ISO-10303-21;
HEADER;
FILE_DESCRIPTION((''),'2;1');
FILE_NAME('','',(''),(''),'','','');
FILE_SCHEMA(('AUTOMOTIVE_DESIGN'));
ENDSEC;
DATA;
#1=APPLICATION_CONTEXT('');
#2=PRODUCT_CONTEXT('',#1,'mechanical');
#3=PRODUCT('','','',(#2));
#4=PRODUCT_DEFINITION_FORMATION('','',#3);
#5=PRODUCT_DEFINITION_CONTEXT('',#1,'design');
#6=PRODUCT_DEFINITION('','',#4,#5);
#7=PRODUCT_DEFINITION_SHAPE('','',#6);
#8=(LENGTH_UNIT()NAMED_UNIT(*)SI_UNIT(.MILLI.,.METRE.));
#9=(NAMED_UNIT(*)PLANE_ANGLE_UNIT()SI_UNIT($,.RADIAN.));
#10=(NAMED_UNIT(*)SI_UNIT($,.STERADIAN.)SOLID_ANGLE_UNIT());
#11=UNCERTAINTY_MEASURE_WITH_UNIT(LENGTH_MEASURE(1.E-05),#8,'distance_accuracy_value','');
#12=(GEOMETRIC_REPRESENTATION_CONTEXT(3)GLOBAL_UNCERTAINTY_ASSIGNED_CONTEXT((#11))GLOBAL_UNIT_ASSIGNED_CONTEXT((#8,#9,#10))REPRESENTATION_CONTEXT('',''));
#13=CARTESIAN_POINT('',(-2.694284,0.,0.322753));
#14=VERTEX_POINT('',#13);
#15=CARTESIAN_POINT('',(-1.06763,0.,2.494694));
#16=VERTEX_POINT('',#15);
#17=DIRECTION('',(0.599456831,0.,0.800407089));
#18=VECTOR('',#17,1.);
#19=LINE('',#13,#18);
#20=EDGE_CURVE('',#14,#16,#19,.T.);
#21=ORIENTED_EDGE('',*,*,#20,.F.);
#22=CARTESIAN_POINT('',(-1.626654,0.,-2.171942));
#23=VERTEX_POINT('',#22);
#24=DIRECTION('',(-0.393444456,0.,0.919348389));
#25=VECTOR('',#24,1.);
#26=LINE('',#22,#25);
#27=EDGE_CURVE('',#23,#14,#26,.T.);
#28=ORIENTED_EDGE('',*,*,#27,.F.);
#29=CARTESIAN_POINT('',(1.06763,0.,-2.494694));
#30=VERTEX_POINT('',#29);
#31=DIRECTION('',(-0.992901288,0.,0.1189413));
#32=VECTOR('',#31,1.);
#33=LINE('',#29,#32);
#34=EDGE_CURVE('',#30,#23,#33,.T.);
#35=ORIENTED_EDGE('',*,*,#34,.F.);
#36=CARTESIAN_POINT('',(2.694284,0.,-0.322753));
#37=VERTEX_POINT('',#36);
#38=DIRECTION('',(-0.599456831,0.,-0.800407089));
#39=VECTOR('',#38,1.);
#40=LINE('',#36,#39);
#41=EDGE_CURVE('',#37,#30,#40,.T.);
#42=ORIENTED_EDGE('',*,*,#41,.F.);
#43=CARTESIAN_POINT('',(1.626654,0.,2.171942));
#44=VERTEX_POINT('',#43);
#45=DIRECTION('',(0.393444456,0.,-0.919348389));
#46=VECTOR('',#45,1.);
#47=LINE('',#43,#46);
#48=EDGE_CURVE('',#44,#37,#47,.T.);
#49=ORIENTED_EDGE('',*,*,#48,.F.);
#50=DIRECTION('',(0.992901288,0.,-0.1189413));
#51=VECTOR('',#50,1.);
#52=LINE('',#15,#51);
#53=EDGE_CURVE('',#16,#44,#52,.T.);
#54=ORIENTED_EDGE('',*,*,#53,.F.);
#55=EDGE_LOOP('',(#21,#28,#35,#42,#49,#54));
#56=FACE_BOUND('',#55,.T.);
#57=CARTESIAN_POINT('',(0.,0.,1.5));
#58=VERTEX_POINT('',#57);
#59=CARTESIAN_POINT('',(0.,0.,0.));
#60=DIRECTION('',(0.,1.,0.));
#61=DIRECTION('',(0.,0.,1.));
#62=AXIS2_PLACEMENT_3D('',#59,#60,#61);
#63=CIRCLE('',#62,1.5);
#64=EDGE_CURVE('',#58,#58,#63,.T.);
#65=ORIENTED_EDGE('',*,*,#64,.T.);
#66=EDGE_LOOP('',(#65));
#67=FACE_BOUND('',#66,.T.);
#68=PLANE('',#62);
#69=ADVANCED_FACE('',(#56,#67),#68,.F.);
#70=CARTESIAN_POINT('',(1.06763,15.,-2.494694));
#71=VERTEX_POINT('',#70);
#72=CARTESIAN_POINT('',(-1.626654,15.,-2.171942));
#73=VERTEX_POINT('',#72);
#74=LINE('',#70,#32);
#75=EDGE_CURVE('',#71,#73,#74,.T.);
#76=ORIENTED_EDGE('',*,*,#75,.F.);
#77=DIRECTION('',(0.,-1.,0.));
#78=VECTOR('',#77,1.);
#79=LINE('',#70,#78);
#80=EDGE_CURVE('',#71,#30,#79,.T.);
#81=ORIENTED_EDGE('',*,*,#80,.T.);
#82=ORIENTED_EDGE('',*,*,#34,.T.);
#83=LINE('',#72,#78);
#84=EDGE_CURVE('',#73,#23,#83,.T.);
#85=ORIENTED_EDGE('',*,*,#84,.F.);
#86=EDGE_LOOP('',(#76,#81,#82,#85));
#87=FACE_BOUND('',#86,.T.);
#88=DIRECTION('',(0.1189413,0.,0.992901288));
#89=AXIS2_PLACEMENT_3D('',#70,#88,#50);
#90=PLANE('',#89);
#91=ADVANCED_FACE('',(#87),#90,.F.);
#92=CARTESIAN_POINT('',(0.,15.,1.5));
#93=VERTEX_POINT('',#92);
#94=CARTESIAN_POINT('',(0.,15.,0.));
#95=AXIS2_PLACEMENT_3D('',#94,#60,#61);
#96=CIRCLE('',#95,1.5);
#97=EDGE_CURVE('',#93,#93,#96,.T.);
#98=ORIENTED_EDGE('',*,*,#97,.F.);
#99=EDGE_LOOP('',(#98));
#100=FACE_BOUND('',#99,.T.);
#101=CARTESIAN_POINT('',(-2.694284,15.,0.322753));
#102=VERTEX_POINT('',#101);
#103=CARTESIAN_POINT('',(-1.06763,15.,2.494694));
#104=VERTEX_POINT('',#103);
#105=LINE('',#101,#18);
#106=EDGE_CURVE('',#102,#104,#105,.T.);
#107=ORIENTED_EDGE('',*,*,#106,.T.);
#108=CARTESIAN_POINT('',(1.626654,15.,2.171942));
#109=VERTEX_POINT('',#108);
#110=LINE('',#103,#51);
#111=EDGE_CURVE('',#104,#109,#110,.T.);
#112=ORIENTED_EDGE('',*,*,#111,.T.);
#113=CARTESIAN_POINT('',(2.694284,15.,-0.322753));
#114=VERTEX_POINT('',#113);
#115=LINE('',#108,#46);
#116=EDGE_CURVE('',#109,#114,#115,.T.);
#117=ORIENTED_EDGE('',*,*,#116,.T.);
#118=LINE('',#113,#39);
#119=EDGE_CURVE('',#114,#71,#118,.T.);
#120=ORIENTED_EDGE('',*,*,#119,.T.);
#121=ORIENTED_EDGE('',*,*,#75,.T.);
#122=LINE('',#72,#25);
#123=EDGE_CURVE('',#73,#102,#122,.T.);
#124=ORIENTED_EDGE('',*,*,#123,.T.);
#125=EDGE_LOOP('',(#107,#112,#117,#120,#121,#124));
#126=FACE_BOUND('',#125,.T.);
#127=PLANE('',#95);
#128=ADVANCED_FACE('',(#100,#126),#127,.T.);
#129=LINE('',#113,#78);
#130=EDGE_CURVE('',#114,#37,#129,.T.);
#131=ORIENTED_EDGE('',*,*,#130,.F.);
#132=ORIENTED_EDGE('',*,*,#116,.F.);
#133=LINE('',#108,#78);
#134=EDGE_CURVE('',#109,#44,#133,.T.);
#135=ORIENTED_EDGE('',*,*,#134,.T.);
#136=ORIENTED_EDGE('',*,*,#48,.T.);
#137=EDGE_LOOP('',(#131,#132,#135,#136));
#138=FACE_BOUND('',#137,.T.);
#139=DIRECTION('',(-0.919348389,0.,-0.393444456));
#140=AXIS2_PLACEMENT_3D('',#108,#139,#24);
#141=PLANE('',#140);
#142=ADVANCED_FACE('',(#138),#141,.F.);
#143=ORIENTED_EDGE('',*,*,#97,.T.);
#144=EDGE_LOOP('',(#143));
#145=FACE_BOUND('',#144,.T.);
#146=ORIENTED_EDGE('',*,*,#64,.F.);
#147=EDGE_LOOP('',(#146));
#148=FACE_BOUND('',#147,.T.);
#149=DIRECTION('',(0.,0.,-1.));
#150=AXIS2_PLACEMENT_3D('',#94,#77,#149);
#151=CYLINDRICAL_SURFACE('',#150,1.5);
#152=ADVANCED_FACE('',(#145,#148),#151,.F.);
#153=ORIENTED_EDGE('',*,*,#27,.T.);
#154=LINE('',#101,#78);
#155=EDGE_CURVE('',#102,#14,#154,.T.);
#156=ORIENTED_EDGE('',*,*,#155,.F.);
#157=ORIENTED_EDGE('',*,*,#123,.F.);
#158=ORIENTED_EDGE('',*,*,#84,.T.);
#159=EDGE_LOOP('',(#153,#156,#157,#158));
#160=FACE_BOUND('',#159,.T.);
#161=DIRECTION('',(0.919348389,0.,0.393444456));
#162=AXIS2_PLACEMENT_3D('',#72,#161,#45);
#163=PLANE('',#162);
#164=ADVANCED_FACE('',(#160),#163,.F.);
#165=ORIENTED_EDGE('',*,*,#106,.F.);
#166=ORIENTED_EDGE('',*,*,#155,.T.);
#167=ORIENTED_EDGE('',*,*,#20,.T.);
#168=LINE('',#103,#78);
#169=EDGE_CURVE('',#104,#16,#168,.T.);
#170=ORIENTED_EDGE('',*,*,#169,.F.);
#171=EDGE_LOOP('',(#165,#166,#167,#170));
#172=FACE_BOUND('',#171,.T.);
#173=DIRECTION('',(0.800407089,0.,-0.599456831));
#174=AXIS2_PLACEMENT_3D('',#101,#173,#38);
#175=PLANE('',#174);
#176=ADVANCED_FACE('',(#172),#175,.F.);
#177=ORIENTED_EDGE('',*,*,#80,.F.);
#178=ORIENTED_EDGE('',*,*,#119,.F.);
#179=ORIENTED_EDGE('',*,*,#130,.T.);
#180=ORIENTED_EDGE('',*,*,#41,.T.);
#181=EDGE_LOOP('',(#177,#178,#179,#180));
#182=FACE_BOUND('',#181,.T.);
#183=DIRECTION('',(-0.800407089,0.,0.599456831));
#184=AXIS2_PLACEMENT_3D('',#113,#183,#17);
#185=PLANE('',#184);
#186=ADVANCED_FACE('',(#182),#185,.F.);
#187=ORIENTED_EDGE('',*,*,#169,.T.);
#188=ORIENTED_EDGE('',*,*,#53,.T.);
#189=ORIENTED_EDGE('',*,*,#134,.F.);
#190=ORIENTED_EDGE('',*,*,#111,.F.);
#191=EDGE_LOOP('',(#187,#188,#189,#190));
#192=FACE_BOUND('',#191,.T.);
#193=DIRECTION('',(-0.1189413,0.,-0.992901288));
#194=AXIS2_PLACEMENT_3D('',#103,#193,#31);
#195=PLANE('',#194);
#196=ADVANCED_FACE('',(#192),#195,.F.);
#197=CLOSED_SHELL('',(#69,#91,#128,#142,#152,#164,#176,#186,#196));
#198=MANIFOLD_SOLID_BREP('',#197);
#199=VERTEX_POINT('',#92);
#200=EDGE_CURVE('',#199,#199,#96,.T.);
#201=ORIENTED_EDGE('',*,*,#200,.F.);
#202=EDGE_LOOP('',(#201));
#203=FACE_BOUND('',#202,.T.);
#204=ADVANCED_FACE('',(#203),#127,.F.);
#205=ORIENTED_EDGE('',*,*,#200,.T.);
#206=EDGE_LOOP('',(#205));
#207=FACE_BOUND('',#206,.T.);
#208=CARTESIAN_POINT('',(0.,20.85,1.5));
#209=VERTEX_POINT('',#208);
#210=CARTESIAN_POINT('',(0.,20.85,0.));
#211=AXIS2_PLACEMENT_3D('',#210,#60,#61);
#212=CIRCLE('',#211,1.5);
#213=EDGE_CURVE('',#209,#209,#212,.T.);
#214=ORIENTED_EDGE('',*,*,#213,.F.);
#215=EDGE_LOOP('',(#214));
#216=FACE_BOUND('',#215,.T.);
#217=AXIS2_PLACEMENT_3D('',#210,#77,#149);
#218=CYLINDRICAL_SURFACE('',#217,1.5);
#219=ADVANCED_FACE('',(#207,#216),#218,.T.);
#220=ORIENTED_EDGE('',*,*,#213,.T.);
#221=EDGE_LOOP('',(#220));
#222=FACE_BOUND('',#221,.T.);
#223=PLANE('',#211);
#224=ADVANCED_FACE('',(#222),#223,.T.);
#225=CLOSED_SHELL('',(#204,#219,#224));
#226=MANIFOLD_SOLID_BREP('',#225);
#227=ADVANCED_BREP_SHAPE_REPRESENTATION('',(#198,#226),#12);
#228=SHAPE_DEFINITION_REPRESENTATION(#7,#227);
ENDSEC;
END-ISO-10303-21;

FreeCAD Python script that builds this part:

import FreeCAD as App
import Part
import Sketcher

V = App.Vector
Q = App.Units.Quantity

doc = App.newDocument("Part")
body = doc.addObject("PartDesign::Body", "Body")

# Sketch on XZ plane
sketch1 = body.newObject("Sketcher::SketchObject", "Sketch")
sketch1.AttachmentSupport = (doc.getObject("XZ_Plane"), [""])
sketch1.MapMode = "FlatFace"
sketch1.addGeometry([
    Part.LineSegment(V(-2.7, 0.3, 0), V(-1.1, 2.5, 0)),  # 0
    Part.LineSegment(V(-1.1, 2.5, 0), V(1.6, 2.2, 0)),  # 1
    Part.LineSegment(V(1.6, 2.2, 0), V(2.7, -0.3, 0)),  # 2
    Part.LineSegment(V(2.7, -0.3, 0), V(1.1, -2.5, 0)),  # 3
    Part.LineSegment(V(1.1, -2.5, 0), V(-1.6, -2.2, 0)),  # 4
    Part.LineSegment(V(-1.6, -2.2, 0), V(-2.7, 0.3, 0)),  # 5
    Part.Circle(V(0, 0, 0), V(0, 0, 1), 1.5),  # 6
], False)
sketch1.addConstraint([
    Sketcher.Constraint("Coincident", 0, 2, 1, 1),
    Sketcher.Constraint("Coincident", 1, 2, 2, 1),
    Sketcher.Constraint("Coincident", 2, 2, 3, 1),
    Sketcher.Constraint("Coincident", 3, 2, 4, 1),
    Sketcher.Constraint("Coincident", 4, 2, 5, 1),
    Sketcher.Constraint("Coincident", 5, 2, 0, 1),
    Sketcher.Constraint("Coincident", 6, 3, -1, 1),
    Sketcher.Constraint("Symmetric", 0, 2, 3, 2, -1, 1),
    Sketcher.Constraint("Symmetric", 1, 2, 4, 2, -1, 1),
    Sketcher.Constraint("Symmetric", 2, 2, 5, 2, -1, 1),
    Sketcher.Constraint("Equal", 0, 1),
    Sketcher.Constraint("Equal", 1, 2),
    Sketcher.Constraint("Diameter", 6, Q("3 mm")),
    Sketcher.Constraint("DistanceX", 0, 2, -1, 1, Q("1.06763 mm")),
    Sketcher.Constraint("DistanceY", -1, 1, 1, 2, Q("2.171942 mm")),
    Sketcher.Constraint("DistanceX", 1, 2, 2, 2, Q("1.06763 mm")),
    Sketcher.Constraint("DistanceY", 3, 2, 2, 2, Q("2.171942 mm")),
])
pad1 = body.newObject("PartDesign::Pad", "Pad")
pad1.Profile = sketch1
pad1.Length = 15
pad1.Reversed = True
body2 = doc.addObject("PartDesign::Body", "Body001")

# Sketch on XZ plane
sketch2 = body2.newObject("Sketcher::SketchObject", "Sketch001")
sketch2.AttachmentSupport = (doc.getObject("XZ_Plane001"), [""])
sketch2.MapMode = "FlatFace"
sketch2.AttachmentOffset = App.Placement(V(0, 0, -15), App.Rotation())
sketch2.addGeometry(Part.Circle(V(0, 0, 0), V(0, 0, 1), 1.5), False)
sketch2.addConstraint([
    Sketcher.Constraint("Coincident", 0, 3, -1, 1),
    Sketcher.Constraint("Diameter", 0, Q("3 mm")),
])
pad2 = body2.newObject("PartDesign::Pad", "Pad001")
pad2.Profile = sketch2
pad2.Length = 5.85
pad2.Reversed = True

doc.recompute()
